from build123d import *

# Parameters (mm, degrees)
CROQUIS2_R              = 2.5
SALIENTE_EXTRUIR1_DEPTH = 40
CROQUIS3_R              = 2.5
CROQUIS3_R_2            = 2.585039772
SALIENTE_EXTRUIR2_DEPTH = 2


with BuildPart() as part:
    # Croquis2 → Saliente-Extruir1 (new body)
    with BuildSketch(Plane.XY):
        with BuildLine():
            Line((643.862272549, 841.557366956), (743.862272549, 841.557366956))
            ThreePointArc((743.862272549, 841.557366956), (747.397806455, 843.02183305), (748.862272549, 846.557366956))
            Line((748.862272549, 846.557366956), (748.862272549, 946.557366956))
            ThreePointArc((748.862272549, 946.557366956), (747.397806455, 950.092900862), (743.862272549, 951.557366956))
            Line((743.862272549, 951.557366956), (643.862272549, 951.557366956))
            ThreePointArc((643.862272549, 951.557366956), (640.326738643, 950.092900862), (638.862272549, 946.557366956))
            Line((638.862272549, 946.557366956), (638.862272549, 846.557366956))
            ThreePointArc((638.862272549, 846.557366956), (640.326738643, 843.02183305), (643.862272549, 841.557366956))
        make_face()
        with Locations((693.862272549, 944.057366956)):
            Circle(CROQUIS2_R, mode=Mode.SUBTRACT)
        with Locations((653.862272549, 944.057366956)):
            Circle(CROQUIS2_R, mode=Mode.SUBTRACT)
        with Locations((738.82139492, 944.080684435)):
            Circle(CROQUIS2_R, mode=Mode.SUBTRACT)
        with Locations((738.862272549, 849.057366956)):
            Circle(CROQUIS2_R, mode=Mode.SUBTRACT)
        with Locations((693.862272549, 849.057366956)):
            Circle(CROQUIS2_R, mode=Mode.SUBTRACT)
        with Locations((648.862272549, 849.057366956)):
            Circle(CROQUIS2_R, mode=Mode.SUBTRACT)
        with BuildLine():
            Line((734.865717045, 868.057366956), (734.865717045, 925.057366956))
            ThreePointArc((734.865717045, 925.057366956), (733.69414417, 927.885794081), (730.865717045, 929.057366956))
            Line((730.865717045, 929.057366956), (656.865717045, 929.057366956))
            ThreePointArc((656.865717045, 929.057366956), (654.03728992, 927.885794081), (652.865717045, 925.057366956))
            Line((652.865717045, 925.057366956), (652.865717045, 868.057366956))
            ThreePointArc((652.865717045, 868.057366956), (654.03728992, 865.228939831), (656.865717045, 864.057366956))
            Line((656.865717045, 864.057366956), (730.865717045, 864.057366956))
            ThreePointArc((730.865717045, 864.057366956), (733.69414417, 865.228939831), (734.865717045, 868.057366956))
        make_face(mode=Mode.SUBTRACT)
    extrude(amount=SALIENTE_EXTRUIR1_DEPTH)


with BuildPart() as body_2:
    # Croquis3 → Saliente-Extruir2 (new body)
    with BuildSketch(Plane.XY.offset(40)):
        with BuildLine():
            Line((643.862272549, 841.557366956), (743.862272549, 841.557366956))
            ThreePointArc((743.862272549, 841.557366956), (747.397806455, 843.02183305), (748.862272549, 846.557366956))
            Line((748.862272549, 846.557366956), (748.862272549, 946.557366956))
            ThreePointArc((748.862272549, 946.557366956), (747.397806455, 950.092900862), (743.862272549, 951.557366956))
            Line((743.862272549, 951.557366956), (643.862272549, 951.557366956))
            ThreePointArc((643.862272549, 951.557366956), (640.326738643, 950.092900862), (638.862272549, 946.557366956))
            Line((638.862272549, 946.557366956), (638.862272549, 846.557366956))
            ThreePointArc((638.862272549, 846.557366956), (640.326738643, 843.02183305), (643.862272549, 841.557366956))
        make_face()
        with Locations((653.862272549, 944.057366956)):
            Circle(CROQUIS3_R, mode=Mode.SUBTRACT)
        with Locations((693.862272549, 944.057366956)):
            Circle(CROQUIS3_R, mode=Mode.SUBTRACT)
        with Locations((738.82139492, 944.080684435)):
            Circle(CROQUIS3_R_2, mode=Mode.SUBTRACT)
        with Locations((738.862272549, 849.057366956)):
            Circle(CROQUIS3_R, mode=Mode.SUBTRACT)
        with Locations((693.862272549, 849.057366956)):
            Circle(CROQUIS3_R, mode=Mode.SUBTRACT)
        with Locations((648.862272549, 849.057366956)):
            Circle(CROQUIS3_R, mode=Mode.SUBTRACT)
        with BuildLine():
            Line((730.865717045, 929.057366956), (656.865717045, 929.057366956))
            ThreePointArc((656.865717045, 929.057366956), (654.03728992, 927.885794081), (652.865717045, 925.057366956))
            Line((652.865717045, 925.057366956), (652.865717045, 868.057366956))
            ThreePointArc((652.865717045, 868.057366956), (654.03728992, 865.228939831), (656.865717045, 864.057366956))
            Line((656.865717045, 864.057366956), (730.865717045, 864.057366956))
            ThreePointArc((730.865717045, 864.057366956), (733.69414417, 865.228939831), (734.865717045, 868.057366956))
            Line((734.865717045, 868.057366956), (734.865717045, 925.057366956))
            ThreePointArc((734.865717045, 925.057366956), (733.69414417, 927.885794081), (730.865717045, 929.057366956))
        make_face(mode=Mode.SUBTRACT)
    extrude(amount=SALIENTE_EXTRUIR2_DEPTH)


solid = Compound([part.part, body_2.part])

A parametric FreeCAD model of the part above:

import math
import FreeCAD as App
import Part
import Sketcher

doc = App.newDocument("Part")
params = doc.addObject("Spreadsheet::Sheet", "Params")
for row, (alias, value) in enumerate([
    ("sketch1_diameter", "5 mm"),
    ("sketch1_radius", "5 mm"),
    ("sketch1_radius2", "4 mm"),
    ("sketch1_width", "100 mm"),
    ("sketch1_width2", "74 mm"),
    ("pad1_length", "40 mm"),
    ("sketch2_diameter", "5 mm"),
    ("sketch2_radius", "5 mm"),
    ("sketch2_radius2", "4 mm"),
    ("sketch2_width", "100 mm"),
    ("sketch2_width2", "74 mm"),
    ("pad2_length", "2 mm"),
], start=1):
    params.set(f"A{row}", alias)
    params.set(f"B{row}", "=" + value)
    params.setAlias(f"B{row}", alias)

body = doc.addObject("PartDesign::Body", "Body")

# Sketch on XY plane
sketch1 = body.newObject("Sketcher::SketchObject", "Sketch")
sketch1.AttachmentSupport = (doc.getObject("XY_Plane"), [""])
sketch1.MapMode = "FlatFace"
sketch1.addGeometry([
    Part.LineSegment(App.Vector(643.862273, 841.557367, 0), App.Vector(743.862273, 841.557367, 0)),  # 0
    Part.ArcOfCircle(Part.Circle(App.Vector(743.862273, 846.557367, 0), App.Vector(0, 0, 1), 5), math.radians(-90), math.radians(0)),  # 1
    Part.LineSegment(App.Vector(748.862273, 846.557367, 0), App.Vector(748.862273, 946.557367, 0)),  # 2
    Part.ArcOfCircle(Part.Circle(App.Vector(743.862273, 946.557367, 0), App.Vector(0, 0, 1), 5), math.radians(0), math.radians(90)),  # 3
    Part.LineSegment(App.Vector(743.862273, 951.557367, 0), App.Vector(643.862273, 951.557367, 0)),  # 4
    Part.ArcOfCircle(Part.Circle(App.Vector(643.862273, 946.557367, 0), App.Vector(0, 0, 1), 5), math.radians(90), math.radians(180)),  # 5
    Part.LineSegment(App.Vector(638.862273, 946.557367, 0), App.Vector(638.862273, 846.557367, 0)),  # 6
    Part.ArcOfCircle(Part.Circle(App.Vector(643.862273, 846.557367, 0), App.Vector(0, 0, 1), 5), math.radians(180), math.radians(270)),  # 7
    Part.Circle(App.Vector(648.862273, 849.057367, 0), App.Vector(0, 0, 1), 2.5),  # 8
    Part.Circle(App.Vector(693.862273, 849.057367, 0), App.Vector(0, 0, 1), 2.5),  # 9
    Part.Circle(App.Vector(738.862273, 849.057367, 0), App.Vector(0, 0, 1), 2.5),  # 10
    Part.LineSegment(App.Vector(734.865717, 925.057367, 0), App.Vector(734.865717, 868.057367, 0)),  # 11
    Part.ArcOfCircle(Part.Circle(App.Vector(730.865717, 868.057367, 0), App.Vector(0, 0, 1), 4), math.radians(-90), math.radians(0)),  # 12
    Part.LineSegment(App.Vector(730.865717, 864.057367, 0), App.Vector(656.865717, 864.057367, 0)),  # 13
    Part.ArcOfCircle(Part.Circle(App.Vector(656.865717, 868.057367, 0), App.Vector(0, 0, 1), 4), math.radians(180), math.radians(270)),  # 14
    Part.LineSegment(App.Vector(652.865717, 868.057367, 0), App.Vector(652.865717, 925.057367, 0)),  # 15
    Part.ArcOfCircle(Part.Circle(App.Vector(656.865717, 925.057367, 0), App.Vector(0, 0, 1), 4), math.radians(90), math.radians(180)),  # 16
    Part.LineSegment(App.Vector(656.865717, 929.057367, 0), App.Vector(730.865717, 929.057367, 0)),  # 17
    Part.ArcOfCircle(Part.Circle(App.Vector(730.865717, 925.057367, 0), App.Vector(0, 0, 1), 4), math.radians(0), math.radians(90)),  # 18
    Part.Circle(App.Vector(653.862273, 944.057367, 0), App.Vector(0, 0, 1), 2.5),  # 19
    Part.Circle(App.Vector(693.862273, 944.057367, 0), App.Vector(0, 0, 1), 2.5),  # 20
    Part.Circle(App.Vector(738.821395, 944.080684, 0), App.Vector(0, 0, 1), 2.5),  # 21
], False)
sketch1.addConstraint([
    Sketcher.Constraint("Tangent", 0, 2, 1, 1),
    Sketcher.Constraint("Tangent", 1, 2, 2, 1),
    Sketcher.Constraint("Tangent", 2, 2, 3, 1),
    Sketcher.Constraint("Tangent", 3, 2, 4, 1),
    Sketcher.Constraint("Tangent", 4, 2, 5, 1),
    Sketcher.Constraint("Tangent", 5, 2, 6, 1),
    Sketcher.Constraint("Tangent", 6, 2, 7, 1),
    Sketcher.Constraint("Tangent", 7, 2, 0, 1),
    Sketcher.Constraint("Tangent", 11, 2, 12, 2),
    Sketcher.Constraint("Tangent", 12, 1, 13, 1),
    Sketcher.Constraint("Tangent", 13, 2, 14, 2),
    Sketcher.Constraint("Tangent", 14, 1, 15, 1),
    Sketcher.Constraint("Tangent", 15, 2, 16, 2),
    Sketcher.Constraint("Tangent", 16, 1, 17, 1),
    Sketcher.Constraint("Tangent", 17, 2, 18, 2),
    Sketcher.Constraint("Tangent", 18, 1, 11, 1),
    Sketcher.Constraint("Horizontal", 0),
    Sketcher.Constraint("Vertical", 2),
    Sketcher.Constraint("Horizontal", 4),
    Sketcher.Constraint("Vertical", 6),
    Sketcher.Constraint("Vertical", 11),
    Sketcher.Constraint("Horizontal", 13),
    Sketcher.Constraint("Vertical", 15),
    Sketcher.Constraint("Horizontal", 17),
    Sketcher.Constraint("Equal", 1, 3),
    Sketcher.Constraint("Equal", 3, 5),
    Sketcher.Constraint("Equal", 5, 7),
    Sketcher.Constraint("Equal", 8, 9),
    Sketcher.Constraint("Equal", 9, 10),
    Sketcher.Constraint("Equal", 12, 14),
    Sketcher.Constraint("Equal", 14, 16),
    Sketcher.Constraint("Equal", 16, 18),
    Sketcher.Constraint("Equal", 10, 19),
    Sketcher.Constraint("Equal", 19, 20),
    Sketcher.Constraint("Equal", 20, 21),
    Sketcher.Constraint("Horizontal", 8, 3, 9, 3),
    Sketcher.Constraint("Horizontal", 9, 3, 10, 3),
    Sketcher.Constraint("Horizontal", 19, 3, 20, 3),
    Sketcher.Constraint("Vertical", 9, 3, 20, 3),
    Sketcher.Constraint("Equal", 4, 2),
    Sketcher.Constraint("Diameter", 8, 5.0),
    Sketcher.Constraint("Radius", 1, 5.0),
    Sketcher.Constraint("Radius", 12, 4.0),
    Sketcher.Constraint("DistanceX", 0, 1, 0, 2, 100.0),
    Sketcher.Constraint("DistanceX", 13, 2, 13, 1, 74.0),
    Sketcher.Constraint("DistanceY", 11, 2, 11, 1, 57.0),
    Sketcher.Constraint("DistanceX", 7, 3, 8, 3, 5.0),
    Sketcher.Constraint("DistanceX", 8, 3, 9, 3, 45.0),
    Sketcher.Constraint("DistanceX", 10, 3, 1, 3, 5.0),
    Sketcher.Constraint("DistanceY", 10, 3, 12, 3, 19.0),
    Sketcher.Constraint("DistanceX", 5, 3, 19, 3, 10.0),
    Sketcher.Constraint("DistanceY", 16, 3, 19, 3, 19.0),
    Sketcher.Constraint("DistanceY", 7, 3, 8, 3, 2.5),
    Sketcher.Constraint("DistanceX", -1, 1, 1, 3, 743.862273),
    Sketcher.Constraint("DistanceY", -1, 1, 1, 3, 846.557367),
    Sketcher.Constraint("DistanceX", -1, 1, 12, 3, 730.865717),
    Sketcher.Constraint("DistanceX", -1, 1, 21, 3, 738.821395),
    Sketcher.Constraint("DistanceY", -1, 1, 21, 3, 944.080684),
])
sketch1.setExpression("Constraints[40]", "Params.sketch1_diameter")
sketch1.setExpression("Constraints[41]", "Params.sketch1_radius")
sketch1.setExpression("Constraints[42]", "Params.sketch1_radius2")
sketch1.setExpression("Constraints[43]", "Params.sketch1_width")
sketch1.setExpression("Constraints[44]", "Params.sketch1_width2")
pad1 = body.newObject("PartDesign::Pad", "Pad")
pad1.Profile = sketch1
pad1.setExpression("Length", "Params.pad1_length")
body2 = doc.addObject("PartDesign::Body", "Body001")

# Sketch on XY plane
sketch2 = body2.newObject("Sketcher::SketchObject", "Sketch001")
sketch2.AttachmentSupport = (doc.getObject("XY_Plane001"), [""])
sketch2.MapMode = "FlatFace"
sketch2.AttachmentOffset = App.Placement(App.Vector(0, 0, 40), App.Rotation())
sketch2.addGeometry([
    Part.LineSegment(App.Vector(643.862273, 841.557367, 0), App.Vector(743.862273, 841.557367, 0)),  # 0
    Part.ArcOfCircle(Part.Circle(App.Vector(743.862273, 846.557367, 0), App.Vector(0, 0, 1), 5), math.radians(-90), math.radians(0)),  # 1
    Part.LineSegment(App.Vector(748.862273, 846.557367, 0), App.Vector(748.862273, 946.557367, 0)),  # 2
    Part.ArcOfCircle(Part.Circle(App.Vector(743.862273, 946.557367, 0), App.Vector(0, 0, 1), 5), math.radians(0), math.radians(90)),  # 3
    Part.LineSegment(App.Vector(743.862273, 951.557367, 0), App.Vector(643.862273, 951.557367, 0)),  # 4
    Part.ArcOfCircle(Part.Circle(App.Vector(643.862273, 946.557367, 0), App.Vector(0, 0, 1), 5), math.radians(90), math.radians(180)),  # 5
    Part.LineSegment(App.Vector(638.862273, 946.557367, 0), App.Vector(638.862273, 846.557367, 0)),  # 6
    Part.ArcOfCircle(Part.Circle(App.Vector(643.862273, 846.557367, 0), App.Vector(0, 0, 1), 5), math.radians(180), math.radians(270)),  # 7
    Part.Circle(App.Vector(648.862273, 849.057367, 0), App.Vector(0, 0, 1), 2.5),  # 8
    Part.Circle(App.Vector(693.862273, 849.057367, 0), App.Vector(0, 0, 1), 2.5),  # 9
    Part.LineSegment(App.Vector(656.865717, 929.057367, 0), App.Vector(730.865717, 929.057367, 0)),  # 10
    Part.ArcOfCircle(Part.Circle(App.Vector(730.865717, 925.057367, 0), App.Vector(0, 0, 1), 4), math.radians(0), math.radians(90)),  # 11
    Part.LineSegment(App.Vector(734.865717, 925.057367, 0), App.Vector(734.865717, 868.057367, 0)),  # 12
    Part.ArcOfCircle(Part.Circle(App.Vector(730.865717, 868.057367, 0), App.Vector(0, 0, 1), 4), math.radians(-90), math.radians(0)),  # 13
    Part.LineSegment(App.Vector(730.865717, 864.057367, 0), App.Vector(656.865717, 864.057367, 0)),  # 14
    Part.ArcOfCircle(Part.Circle(App.Vector(656.865717, 868.057367, 0), App.Vector(0, 0, 1), 4), math.radians(180), math.radians(270)),  # 15
    Part.LineSegment(App.Vector(652.865717, 868.057367, 0), App.Vector(652.865717, 925.057367, 0)),  # 16
    Part.ArcOfCircle(Part.Circle(App.Vector(656.865717, 925.057367, 0), App.Vector(0, 0, 1), 4), math.radians(90), math.radians(180)),  # 17
    Part.Circle(App.Vector(738.862273, 849.057367, 0), App.Vector(0, 0, 1), 2.5),  # 18
    Part.Circle(App.Vector(653.862273, 944.057367, 0), App.Vector(0, 0, 1), 2.5),  # 19
    Part.Circle(App.Vector(693.862273, 944.057367, 0), App.Vector(0, 0, 1), 2.5),  # 20
    Part.Circle(App.Vector(738.821395, 944.080684, 0), App.Vector(0, 0, 1), 2.58504),  # 21
], False)
sketch2.addConstraint([
    Sketcher.Constraint("Tangent", 0, 2, 1, 1),
    Sketcher.Constraint("Tangent", 1, 2, 2, 1),
    Sketcher.Constraint("Tangent", 2, 2, 3, 1),
    Sketcher.Constraint("Tangent", 3, 2, 4, 1),
    Sketcher.Constraint("Tangent", 4, 2, 5, 1),
    Sketcher.Constraint("Tangent", 5, 2, 6, 1),
    Sketcher.Constraint("Tangent", 6, 2, 7, 1),
    Sketcher.Constraint("Tangent", 7, 2, 0, 1),
    Sketcher.Constraint("Tangent", 10, 2, 11, 2),
    Sketcher.Constraint("Tangent", 11, 1, 12, 1),
    Sketcher.Constraint("Tangent", 12, 2, 13, 2),
    Sketcher.Constraint("Tangent", 13, 1, 14, 1),
    Sketcher.Constraint("Tangent", 14, 2, 15, 2),
    Sketcher.Constraint("Tangent", 15, 1, 16, 1),
    Sketcher.Constraint("Tangent", 16, 2, 17, 2),
    Sketcher.Constraint("Tangent", 17, 1, 10, 1),
    Sketcher.Constraint("Horizontal", 0),
    Sketcher.Constraint("Vertical", 2),
    Sketcher.Constraint("Horizontal", 4),
    Sketcher.Constraint("Vertical", 6),
    Sketcher.Constraint("Horizontal", 10),
    Sketcher.Constraint("Vertical", 12),
    Sketcher.Constraint("Horizontal", 14),
    Sketcher.Constraint("Vertical", 16),
    Sketcher.Constraint("Equal", 1, 3),
    Sketcher.Constraint("Equal", 3, 5),
    Sketcher.Constraint("Equal", 5, 7),
    Sketcher.Constraint("Equal", 8, 9),
    Sketcher.Constraint("Equal", 11, 13),
    Sketcher.Constraint("Equal", 13, 15),
    Sketcher.Constraint("Equal", 15, 17),
    Sketcher.Constraint("Equal", 9, 18),
    Sketcher.Constraint("Equal", 18, 19),
    Sketcher.Constraint("Equal", 19, 20),
    Sketcher.Constraint("Horizontal", 8, 3, 9, 3),
    Sketcher.Constraint("Horizontal", 9, 3, 18, 3),
    Sketcher.Constraint("Horizontal", 19, 3, 20, 3),
    Sketcher.Constraint("Vertical", 9, 3, 20, 3),
    Sketcher.Constraint("Equal", 4, 2),
    Sketcher.Constraint("Diameter", 8, 5.0),
    Sketcher.Constraint("Radius", 1, 5.0),
    Sketcher.Constraint("Radius", 11, 4.0),
    Sketcher.Constraint("DistanceX", 0, 1, 0, 2, 100.0),
    Sketcher.Constraint("DistanceX", 10, 1, 10, 2, 74.0),
    Sketcher.Constraint("DistanceY", 12, 2, 12, 1, 57.0),
    Sketcher.Constraint("DistanceX", 7, 3, 8, 3, 5.0),
    Sketcher.Constraint("DistanceX", 8, 3, 9, 3, 45.0),
    Sketcher.Constraint("DistanceY", 9, 3, 11, 3, 76.0),
    Sketcher.Constraint("DistanceX", 18, 3, 1, 3, 5.0),
    Sketcher.Constraint("DistanceX", 5, 3, 19, 3, 10.0),
    Sketcher.Constraint("DistanceY", 17, 3, 19, 3, 19.0),
    Sketcher.Constraint("DistanceY", 7, 3, 8, 3, 2.5),
    Sketcher.Constraint("Diameter", 21, 5.17008),
    Sketcher.Constraint("DistanceX", -1, 1, 1, 3, 743.862273),
    Sketcher.Constraint("DistanceY", -1, 1, 1, 3, 846.557367),
    Sketcher.Constraint("DistanceX", -1, 1, 11, 3, 730.865717),
    Sketcher.Constraint("DistanceX", -1, 1, 21, 3, 738.821395),
    Sketcher.Constraint("DistanceY", -1, 1, 21, 3, 944.080684),
])
sketch2.setExpression("Constraints[39]", "Params.sketch2_diameter")
sketch2.setExpression("Constraints[40]", "Params.sketch2_radius")
sketch2.setExpression("Constraints[41]", "Params.sketch2_radius2")
sketch2.setExpression("Constraints[42]", "Params.sketch2_width")
sketch2.setExpression("Constraints[43]", "Params.sketch2_width2")
pad2 = body2.newObject("PartDesign::Pad", "Pad001")
pad2.Profile = sketch2
pad2.setExpression("Length", "Params.pad2_length")

doc.recompute()
